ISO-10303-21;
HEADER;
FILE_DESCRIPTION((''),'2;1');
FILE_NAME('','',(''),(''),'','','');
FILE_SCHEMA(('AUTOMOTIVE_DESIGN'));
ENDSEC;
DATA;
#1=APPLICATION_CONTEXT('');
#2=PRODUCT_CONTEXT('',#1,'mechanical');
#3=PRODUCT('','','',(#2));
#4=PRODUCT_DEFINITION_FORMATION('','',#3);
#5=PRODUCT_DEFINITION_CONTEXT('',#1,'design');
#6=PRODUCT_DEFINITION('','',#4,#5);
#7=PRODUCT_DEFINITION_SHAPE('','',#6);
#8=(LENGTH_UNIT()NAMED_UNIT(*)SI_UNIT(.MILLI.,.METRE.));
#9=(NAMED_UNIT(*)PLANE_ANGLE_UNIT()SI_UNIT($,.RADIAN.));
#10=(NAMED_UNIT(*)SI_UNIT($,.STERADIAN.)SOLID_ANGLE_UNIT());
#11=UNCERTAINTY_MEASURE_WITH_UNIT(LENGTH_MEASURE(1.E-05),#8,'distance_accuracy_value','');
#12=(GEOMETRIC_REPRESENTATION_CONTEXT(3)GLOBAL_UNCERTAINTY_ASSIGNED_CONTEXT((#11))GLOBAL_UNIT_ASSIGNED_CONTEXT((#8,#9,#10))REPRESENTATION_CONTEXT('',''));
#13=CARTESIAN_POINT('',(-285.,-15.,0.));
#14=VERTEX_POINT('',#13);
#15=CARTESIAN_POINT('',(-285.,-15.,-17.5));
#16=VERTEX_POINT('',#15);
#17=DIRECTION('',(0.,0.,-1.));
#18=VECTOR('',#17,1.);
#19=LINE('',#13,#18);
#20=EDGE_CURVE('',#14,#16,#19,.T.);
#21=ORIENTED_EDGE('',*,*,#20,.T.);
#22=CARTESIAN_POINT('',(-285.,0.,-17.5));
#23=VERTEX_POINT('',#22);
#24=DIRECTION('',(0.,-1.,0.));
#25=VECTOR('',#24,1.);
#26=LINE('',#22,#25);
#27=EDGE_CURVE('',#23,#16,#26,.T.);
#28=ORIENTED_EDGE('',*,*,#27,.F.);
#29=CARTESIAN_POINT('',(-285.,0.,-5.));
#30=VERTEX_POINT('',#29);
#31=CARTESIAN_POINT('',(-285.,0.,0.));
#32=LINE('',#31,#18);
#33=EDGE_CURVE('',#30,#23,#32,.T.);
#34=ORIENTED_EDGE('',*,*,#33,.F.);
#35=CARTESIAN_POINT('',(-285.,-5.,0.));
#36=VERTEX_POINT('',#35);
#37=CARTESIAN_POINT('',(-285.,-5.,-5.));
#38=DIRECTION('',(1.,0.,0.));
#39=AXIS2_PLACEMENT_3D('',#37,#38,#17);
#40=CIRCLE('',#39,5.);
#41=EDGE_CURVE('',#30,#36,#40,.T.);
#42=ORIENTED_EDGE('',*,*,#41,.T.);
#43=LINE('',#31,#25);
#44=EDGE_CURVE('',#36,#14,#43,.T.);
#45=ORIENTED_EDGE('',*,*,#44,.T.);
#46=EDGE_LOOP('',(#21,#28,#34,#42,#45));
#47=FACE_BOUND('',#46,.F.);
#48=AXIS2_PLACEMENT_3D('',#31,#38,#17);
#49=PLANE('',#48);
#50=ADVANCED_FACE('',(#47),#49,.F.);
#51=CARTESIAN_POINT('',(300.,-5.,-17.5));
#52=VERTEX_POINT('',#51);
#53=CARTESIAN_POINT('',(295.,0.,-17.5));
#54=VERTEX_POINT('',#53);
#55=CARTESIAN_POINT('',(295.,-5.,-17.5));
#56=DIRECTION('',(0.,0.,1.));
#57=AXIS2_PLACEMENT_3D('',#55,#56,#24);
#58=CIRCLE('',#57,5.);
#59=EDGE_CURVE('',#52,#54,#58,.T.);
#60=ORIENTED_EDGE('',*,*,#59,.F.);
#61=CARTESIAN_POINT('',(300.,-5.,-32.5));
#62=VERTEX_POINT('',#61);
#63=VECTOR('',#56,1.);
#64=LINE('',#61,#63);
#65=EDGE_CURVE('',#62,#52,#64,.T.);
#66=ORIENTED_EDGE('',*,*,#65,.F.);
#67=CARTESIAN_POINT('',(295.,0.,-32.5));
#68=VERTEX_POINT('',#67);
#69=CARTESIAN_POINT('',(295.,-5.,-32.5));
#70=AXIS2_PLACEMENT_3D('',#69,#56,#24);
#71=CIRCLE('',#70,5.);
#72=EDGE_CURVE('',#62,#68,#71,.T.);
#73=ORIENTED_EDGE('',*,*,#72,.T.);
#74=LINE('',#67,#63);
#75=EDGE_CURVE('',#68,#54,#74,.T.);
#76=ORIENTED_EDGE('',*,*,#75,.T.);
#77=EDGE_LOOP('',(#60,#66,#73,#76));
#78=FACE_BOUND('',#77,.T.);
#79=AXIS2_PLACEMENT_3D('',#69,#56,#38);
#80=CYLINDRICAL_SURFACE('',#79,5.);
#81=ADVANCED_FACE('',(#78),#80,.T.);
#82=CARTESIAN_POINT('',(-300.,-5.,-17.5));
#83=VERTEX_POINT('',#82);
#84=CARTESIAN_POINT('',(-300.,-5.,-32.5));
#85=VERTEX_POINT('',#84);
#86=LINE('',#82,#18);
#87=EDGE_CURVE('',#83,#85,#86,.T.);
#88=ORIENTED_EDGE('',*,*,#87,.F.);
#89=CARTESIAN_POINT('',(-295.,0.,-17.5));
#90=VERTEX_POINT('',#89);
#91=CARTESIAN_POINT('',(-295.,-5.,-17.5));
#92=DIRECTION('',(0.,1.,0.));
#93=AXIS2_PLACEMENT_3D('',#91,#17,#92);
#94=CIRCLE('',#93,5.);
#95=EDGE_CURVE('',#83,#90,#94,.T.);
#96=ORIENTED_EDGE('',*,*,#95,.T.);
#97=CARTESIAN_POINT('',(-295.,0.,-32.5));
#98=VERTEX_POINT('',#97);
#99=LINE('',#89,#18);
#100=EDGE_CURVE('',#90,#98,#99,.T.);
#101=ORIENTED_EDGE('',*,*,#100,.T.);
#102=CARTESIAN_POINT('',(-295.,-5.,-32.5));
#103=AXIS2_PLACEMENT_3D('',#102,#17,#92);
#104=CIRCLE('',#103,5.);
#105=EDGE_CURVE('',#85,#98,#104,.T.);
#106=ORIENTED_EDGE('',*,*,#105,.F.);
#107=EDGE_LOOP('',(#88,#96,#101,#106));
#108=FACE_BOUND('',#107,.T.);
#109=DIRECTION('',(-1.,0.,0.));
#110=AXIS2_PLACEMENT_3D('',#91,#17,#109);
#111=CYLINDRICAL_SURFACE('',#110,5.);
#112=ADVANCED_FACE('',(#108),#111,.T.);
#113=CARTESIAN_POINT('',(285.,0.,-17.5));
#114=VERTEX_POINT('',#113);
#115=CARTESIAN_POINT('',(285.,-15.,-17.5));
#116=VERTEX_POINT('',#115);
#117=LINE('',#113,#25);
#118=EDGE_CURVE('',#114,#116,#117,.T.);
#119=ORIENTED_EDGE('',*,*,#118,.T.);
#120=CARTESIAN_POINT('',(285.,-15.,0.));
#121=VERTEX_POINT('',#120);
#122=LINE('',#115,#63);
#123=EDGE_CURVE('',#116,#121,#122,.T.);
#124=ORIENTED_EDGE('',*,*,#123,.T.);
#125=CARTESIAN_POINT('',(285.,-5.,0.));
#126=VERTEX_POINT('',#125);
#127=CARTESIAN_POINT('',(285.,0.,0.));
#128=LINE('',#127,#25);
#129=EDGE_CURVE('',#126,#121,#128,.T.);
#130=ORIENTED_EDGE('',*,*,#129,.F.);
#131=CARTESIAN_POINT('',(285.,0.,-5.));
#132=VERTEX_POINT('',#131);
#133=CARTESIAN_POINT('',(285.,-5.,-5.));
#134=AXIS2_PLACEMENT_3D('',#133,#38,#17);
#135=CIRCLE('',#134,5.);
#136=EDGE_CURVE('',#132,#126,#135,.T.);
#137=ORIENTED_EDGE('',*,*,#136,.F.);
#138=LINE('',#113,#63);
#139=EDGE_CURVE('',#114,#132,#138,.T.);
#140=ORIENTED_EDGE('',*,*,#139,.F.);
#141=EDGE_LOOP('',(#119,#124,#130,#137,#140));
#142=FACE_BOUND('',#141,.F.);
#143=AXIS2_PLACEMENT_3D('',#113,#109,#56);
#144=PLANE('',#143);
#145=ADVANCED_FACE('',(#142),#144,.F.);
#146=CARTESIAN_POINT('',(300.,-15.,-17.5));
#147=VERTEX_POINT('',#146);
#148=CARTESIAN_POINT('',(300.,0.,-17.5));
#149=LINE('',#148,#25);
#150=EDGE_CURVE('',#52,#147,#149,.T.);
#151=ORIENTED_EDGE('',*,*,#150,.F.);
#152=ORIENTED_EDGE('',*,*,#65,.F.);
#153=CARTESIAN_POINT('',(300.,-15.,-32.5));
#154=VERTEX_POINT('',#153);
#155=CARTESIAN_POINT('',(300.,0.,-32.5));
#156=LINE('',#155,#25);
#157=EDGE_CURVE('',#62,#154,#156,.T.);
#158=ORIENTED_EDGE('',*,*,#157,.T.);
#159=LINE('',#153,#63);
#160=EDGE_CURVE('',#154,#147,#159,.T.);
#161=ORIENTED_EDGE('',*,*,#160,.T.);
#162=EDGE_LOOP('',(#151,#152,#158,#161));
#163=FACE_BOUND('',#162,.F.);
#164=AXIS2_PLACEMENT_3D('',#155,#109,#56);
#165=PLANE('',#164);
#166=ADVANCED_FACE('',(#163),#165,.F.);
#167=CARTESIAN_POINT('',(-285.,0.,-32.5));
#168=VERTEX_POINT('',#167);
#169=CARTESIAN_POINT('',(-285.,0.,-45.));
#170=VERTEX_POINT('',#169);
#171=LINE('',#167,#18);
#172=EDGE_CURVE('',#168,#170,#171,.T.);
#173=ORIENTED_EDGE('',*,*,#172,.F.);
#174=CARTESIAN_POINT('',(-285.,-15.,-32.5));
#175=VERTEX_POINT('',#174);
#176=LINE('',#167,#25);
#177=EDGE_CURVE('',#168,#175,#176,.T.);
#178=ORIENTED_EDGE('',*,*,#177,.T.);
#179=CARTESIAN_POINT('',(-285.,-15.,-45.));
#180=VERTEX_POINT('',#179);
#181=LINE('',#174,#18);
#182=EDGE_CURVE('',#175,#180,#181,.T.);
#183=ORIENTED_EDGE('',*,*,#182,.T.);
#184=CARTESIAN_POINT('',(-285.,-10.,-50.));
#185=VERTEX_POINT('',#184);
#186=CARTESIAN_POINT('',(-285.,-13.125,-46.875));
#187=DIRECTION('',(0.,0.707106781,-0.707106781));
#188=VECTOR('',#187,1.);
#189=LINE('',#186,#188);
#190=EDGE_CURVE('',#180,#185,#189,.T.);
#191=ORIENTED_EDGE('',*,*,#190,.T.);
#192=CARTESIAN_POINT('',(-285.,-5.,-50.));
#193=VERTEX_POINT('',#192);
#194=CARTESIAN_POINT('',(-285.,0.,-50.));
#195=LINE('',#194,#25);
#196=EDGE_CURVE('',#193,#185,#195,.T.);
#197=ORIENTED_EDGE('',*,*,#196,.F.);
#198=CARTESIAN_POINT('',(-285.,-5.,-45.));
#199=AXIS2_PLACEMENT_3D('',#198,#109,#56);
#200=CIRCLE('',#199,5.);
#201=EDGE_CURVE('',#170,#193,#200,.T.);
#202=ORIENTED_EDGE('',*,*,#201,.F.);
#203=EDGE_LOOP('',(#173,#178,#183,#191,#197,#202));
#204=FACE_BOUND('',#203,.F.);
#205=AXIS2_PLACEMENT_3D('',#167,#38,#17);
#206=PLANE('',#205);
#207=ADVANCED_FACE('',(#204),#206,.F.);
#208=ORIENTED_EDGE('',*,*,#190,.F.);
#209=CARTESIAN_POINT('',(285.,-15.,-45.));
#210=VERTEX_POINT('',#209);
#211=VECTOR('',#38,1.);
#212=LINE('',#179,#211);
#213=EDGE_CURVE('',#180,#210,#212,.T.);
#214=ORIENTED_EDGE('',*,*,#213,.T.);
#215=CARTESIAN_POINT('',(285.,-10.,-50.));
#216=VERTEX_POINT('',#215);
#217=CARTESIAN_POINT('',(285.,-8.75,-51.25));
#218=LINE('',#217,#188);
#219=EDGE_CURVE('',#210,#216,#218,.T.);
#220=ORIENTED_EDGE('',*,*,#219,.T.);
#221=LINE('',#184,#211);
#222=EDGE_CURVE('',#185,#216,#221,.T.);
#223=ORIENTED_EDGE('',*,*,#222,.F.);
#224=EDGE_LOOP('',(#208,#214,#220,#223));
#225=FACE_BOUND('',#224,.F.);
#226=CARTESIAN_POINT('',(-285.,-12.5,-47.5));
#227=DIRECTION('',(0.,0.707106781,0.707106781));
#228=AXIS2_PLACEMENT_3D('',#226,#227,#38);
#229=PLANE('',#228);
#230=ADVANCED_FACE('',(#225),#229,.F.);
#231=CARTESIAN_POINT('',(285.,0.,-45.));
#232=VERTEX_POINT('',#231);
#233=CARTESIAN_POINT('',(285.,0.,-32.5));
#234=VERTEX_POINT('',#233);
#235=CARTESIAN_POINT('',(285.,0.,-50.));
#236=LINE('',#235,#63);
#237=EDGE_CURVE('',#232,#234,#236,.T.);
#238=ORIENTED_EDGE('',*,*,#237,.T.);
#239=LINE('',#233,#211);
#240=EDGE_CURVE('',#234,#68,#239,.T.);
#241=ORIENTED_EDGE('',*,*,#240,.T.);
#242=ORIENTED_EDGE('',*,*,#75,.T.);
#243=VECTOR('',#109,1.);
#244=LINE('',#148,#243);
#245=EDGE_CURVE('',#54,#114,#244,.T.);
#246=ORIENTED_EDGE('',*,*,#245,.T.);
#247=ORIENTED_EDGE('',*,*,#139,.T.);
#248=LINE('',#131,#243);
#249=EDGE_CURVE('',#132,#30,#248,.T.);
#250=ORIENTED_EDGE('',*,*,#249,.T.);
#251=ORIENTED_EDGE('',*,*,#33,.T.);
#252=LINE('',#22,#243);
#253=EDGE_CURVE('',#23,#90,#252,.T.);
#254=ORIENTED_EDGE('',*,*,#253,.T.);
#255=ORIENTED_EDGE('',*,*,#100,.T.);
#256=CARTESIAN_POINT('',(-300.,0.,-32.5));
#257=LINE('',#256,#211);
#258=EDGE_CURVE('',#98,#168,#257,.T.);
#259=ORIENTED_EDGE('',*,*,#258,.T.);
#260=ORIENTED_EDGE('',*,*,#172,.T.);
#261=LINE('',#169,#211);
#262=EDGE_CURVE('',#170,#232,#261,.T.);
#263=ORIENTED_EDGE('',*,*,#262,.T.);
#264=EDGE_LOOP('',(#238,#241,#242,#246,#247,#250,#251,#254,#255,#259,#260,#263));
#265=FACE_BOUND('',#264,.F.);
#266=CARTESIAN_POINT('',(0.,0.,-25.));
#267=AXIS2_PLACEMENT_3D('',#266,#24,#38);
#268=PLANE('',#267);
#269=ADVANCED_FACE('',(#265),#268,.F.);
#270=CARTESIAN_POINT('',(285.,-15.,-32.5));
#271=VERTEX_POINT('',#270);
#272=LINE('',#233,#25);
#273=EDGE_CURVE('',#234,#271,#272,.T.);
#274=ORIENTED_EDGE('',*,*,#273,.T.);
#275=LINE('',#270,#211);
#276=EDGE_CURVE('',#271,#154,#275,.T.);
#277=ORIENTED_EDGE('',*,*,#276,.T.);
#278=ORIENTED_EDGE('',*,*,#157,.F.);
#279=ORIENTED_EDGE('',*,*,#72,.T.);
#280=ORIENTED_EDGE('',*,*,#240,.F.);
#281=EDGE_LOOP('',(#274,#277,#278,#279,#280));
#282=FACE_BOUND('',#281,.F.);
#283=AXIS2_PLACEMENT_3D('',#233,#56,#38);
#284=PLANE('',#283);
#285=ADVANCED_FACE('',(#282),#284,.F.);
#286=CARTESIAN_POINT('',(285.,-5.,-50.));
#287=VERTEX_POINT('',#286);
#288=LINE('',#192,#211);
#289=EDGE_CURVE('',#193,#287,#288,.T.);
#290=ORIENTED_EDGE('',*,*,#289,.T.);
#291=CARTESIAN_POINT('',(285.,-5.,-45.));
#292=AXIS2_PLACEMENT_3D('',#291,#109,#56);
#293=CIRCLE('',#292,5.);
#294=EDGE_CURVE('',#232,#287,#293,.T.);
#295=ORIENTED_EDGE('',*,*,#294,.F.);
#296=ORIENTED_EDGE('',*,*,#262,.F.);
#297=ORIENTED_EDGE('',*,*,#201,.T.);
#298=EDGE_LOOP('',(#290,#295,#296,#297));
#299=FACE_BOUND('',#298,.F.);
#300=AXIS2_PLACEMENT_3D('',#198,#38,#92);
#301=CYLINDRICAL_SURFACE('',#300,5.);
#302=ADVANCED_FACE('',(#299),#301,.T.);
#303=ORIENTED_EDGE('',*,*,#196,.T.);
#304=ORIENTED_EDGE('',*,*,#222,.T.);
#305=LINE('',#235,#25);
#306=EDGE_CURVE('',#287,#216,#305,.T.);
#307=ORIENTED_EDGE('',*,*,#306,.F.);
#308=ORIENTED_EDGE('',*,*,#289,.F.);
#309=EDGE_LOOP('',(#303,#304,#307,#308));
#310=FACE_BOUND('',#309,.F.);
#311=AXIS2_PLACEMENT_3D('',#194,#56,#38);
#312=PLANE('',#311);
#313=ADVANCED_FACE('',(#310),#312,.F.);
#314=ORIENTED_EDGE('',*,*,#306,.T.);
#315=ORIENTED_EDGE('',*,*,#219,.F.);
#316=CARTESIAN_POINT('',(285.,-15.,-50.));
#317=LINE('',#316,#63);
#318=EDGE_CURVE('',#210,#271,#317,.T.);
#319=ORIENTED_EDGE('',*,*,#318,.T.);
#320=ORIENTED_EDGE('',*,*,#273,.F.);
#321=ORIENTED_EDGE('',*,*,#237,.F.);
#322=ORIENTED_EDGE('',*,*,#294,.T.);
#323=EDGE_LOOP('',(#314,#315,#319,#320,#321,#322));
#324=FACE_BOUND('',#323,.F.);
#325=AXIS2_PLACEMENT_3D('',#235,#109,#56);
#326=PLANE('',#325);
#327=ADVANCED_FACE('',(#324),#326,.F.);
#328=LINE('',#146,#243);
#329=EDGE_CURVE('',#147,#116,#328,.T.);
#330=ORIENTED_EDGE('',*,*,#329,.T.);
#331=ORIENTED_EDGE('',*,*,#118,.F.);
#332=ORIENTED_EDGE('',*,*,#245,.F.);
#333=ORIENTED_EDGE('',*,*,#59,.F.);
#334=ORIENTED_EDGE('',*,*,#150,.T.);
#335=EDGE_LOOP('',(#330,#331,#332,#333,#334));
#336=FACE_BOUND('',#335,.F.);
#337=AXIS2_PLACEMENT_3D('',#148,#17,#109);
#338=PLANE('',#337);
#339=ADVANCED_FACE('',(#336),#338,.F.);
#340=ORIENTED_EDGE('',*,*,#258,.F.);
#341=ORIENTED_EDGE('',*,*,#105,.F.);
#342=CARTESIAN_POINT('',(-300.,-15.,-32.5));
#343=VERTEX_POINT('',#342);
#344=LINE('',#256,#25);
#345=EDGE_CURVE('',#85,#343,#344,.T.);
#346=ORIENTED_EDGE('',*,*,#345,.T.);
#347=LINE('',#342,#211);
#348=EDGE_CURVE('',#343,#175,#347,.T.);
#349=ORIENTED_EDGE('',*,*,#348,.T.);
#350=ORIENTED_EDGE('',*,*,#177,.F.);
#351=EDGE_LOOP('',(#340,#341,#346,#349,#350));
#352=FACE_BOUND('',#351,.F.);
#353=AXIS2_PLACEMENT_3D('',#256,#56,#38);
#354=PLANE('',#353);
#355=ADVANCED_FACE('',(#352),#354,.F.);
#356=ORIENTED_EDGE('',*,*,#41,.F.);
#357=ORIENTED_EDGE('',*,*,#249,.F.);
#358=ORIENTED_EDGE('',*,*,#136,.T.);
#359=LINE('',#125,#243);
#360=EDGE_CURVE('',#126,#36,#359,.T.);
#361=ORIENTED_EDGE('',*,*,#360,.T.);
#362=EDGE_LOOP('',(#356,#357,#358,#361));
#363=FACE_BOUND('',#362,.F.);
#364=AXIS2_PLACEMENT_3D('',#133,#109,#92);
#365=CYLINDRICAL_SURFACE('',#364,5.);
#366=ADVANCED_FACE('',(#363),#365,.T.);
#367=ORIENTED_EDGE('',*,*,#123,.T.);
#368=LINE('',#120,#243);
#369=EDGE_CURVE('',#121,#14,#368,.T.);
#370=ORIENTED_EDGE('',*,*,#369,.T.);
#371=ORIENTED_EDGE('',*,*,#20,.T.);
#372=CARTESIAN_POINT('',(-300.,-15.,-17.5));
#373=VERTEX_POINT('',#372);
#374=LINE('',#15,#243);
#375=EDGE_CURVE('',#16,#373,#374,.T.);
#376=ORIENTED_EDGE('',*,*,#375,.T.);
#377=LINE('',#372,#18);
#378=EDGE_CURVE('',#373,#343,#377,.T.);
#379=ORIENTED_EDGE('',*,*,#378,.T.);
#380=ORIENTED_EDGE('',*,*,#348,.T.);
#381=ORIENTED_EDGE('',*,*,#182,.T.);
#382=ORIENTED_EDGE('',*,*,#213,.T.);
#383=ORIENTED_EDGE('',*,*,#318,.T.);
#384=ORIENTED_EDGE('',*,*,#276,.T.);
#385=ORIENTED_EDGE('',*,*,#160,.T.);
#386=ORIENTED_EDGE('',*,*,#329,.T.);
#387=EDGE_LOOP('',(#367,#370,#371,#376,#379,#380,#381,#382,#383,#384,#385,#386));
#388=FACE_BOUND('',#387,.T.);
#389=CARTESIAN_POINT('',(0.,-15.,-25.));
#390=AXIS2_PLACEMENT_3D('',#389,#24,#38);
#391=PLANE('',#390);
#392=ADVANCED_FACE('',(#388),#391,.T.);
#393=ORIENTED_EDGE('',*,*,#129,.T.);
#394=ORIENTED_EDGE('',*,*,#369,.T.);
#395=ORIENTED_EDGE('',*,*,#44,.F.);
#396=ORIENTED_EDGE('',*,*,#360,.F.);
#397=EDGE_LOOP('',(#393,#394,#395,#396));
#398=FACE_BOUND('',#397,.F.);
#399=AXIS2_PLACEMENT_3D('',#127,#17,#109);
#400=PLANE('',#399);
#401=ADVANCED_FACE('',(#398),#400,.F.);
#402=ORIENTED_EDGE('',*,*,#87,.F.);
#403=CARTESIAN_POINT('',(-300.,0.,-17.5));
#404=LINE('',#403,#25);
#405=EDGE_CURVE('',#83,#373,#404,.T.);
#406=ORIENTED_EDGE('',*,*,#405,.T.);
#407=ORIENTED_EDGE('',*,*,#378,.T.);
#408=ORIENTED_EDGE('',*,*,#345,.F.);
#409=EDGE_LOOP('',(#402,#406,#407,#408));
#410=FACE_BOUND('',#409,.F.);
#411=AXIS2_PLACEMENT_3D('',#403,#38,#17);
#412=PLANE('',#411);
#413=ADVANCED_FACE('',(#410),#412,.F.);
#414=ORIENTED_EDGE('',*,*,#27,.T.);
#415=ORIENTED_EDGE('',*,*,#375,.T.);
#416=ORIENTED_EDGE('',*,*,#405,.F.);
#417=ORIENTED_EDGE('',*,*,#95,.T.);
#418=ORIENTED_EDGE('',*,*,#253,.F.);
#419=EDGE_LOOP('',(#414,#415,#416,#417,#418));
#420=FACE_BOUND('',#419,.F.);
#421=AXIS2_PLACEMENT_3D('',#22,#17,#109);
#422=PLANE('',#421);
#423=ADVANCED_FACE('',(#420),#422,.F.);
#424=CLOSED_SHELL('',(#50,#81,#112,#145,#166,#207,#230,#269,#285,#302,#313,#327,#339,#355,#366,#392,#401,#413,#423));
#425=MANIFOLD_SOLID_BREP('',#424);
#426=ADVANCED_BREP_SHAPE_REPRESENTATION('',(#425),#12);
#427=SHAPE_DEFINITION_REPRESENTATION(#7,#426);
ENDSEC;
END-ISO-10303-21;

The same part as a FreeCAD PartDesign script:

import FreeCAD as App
import Part
import Sketcher
from FreeCAD import Vector


def edges_at(feature, points):
    """Names of the edges that pass closest to the given points."""
    edges = feature.Shape.Edges
    near = lambda p: min(range(len(edges)), key=lambda i: edges[i].distToShape(Part.Vertex(*p))[0])
    return sorted({f"Edge{near(p) + 1}" for p in points})

doc = App.newDocument("Part")
body = doc.addObject("PartDesign::Body", "Body")

# Sketch on XZ plane
sketch1 = body.newObject("Sketcher::SketchObject", "Sketch")
sketch1.AttachmentSupport = (doc.getObject("XZ_Plane"), [""])
sketch1.MapMode = "FlatFace"
sketch1.addGeometry([
    Part.LineSegment(Vector(285, 0, 0), Vector(-285, 0, 0)),  # 0
    Part.LineSegment(Vector(-285, 0, 0), Vector(-285, -18, 0)),  # 1
    Part.LineSegment(Vector(-285, -18, 0), Vector(-300, -18, 0)),  # 2
    Part.LineSegment(Vector(-300, -18, 0), Vector(-300, -32, 0)),  # 3
    Part.LineSegment(Vector(-300, -32, 0), Vector(-285, -32, 0)),  # 4
    Part.LineSegment(Vector(-285, -32, 0), Vector(-285, -50, 0)),  # 5
    Part.LineSegment(Vector(-285, -50, 0), Vector(285, -50, 0)),  # 6
    Part.LineSegment(Vector(285, -50, 0), Vector(285, -32, 0)),  # 7
    Part.LineSegment(Vector(285, -32, 0), Vector(300, -32, 0)),  # 8
    Part.LineSegment(Vector(300, -32, 0), Vector(300, -18, 0)),  # 9
    Part.LineSegment(Vector(300, -18, 0), Vector(285, -18, 0)),  # 10
    Part.LineSegment(Vector(285, -18, 0), Vector(285, 0, 0)),  # 11
], False)
sketch1.addConstraint([
    Sketcher.Constraint("Coincident", 0, 2, 1, 1),
    Sketcher.Constraint("Coincident", 1, 2, 2, 1),
    Sketcher.Constraint("Coincident", 2, 2, 3, 1),
    Sketcher.Constraint("Coincident", 3, 2, 4, 1),
    Sketcher.Constraint("Coincident", 4, 2, 5, 1),
    Sketcher.Constraint("Coincident", 5, 2, 6, 1),
    Sketcher.Constraint("Coincident", 6, 2, 7, 1),
    Sketcher.Constraint("Coincident", 7, 2, 8, 1),
    Sketcher.Constraint("Coincident", 8, 2, 9, 1),
    Sketcher.Constraint("Coincident", 9, 2, 10, 1),
    Sketcher.Constraint("Coincident", 10, 2, 11, 1),
    Sketcher.Constraint("Coincident", 11, 2, 0, 1),
    Sketcher.Constraint("Horizontal", 0),
    Sketcher.Constraint("Vertical", 1),
    Sketcher.Constraint("Horizontal", 2),
    Sketcher.Constraint("Vertical", 3),
    Sketcher.Constraint("Horizontal", 4),
    Sketcher.Constraint("Vertical", 5),
    Sketcher.Constraint("Horizontal", 6),
    Sketcher.Constraint("Vertical", 7),
    Sketcher.Constraint("Horizontal", 8),
    Sketcher.Constraint("Vertical", 9),
    Sketcher.Constraint("Horizontal", 10),
    Sketcher.Constraint("Vertical", 11),
    Sketcher.Constraint("Symmetric", 0, 2, 11, 2, -1, 1),
    Sketcher.Constraint("Symmetric", 4, 2, 7, 2, -2),
    Sketcher.Constraint("Symmetric", 2, 2, 9, 2, -2),
    Sketcher.Constraint("Vertical", 1, 2, 4, 2),
    Sketcher.Constraint("Equal", 10, 3),
    Sketcher.Constraint("Equal", 1, 5),
    Sketcher.Constraint("DistanceX", 0, 2, 0, 1, 570.0),
    Sketcher.Constraint("DistanceX", 2, 2, 2, 1, 15.0),
    Sketcher.Constraint("DistanceY", 1, 2, 1, 1, 17.5),
])
pad1 = body.newObject("PartDesign::Pad", "Pad")
pad1.Profile = sketch1
pad1.Length = 15
doc.recompute()

fillet = body.newObject("PartDesign::Fillet", "Fillet")
fillet.Base = (pad1, edges_at(pad1, [(300, 0, -25), (-300, 0, -25)]))
fillet.Radius = 5
doc.recompute()

fillet2 = body.newObject("PartDesign::Fillet", "Fillet001")
fillet2.Base = (fillet, edges_at(fillet, [(0, 0, 0), (0, 0, -50)]))
fillet2.Radius = 5
doc.recompute()

chamfer = body.newObject("PartDesign::Chamfer", "Chamfer")
chamfer.Base = (fillet2, edges_at(fillet2, [(0, -15, -50)]))
chamfer.Size = 5

doc.recompute()
